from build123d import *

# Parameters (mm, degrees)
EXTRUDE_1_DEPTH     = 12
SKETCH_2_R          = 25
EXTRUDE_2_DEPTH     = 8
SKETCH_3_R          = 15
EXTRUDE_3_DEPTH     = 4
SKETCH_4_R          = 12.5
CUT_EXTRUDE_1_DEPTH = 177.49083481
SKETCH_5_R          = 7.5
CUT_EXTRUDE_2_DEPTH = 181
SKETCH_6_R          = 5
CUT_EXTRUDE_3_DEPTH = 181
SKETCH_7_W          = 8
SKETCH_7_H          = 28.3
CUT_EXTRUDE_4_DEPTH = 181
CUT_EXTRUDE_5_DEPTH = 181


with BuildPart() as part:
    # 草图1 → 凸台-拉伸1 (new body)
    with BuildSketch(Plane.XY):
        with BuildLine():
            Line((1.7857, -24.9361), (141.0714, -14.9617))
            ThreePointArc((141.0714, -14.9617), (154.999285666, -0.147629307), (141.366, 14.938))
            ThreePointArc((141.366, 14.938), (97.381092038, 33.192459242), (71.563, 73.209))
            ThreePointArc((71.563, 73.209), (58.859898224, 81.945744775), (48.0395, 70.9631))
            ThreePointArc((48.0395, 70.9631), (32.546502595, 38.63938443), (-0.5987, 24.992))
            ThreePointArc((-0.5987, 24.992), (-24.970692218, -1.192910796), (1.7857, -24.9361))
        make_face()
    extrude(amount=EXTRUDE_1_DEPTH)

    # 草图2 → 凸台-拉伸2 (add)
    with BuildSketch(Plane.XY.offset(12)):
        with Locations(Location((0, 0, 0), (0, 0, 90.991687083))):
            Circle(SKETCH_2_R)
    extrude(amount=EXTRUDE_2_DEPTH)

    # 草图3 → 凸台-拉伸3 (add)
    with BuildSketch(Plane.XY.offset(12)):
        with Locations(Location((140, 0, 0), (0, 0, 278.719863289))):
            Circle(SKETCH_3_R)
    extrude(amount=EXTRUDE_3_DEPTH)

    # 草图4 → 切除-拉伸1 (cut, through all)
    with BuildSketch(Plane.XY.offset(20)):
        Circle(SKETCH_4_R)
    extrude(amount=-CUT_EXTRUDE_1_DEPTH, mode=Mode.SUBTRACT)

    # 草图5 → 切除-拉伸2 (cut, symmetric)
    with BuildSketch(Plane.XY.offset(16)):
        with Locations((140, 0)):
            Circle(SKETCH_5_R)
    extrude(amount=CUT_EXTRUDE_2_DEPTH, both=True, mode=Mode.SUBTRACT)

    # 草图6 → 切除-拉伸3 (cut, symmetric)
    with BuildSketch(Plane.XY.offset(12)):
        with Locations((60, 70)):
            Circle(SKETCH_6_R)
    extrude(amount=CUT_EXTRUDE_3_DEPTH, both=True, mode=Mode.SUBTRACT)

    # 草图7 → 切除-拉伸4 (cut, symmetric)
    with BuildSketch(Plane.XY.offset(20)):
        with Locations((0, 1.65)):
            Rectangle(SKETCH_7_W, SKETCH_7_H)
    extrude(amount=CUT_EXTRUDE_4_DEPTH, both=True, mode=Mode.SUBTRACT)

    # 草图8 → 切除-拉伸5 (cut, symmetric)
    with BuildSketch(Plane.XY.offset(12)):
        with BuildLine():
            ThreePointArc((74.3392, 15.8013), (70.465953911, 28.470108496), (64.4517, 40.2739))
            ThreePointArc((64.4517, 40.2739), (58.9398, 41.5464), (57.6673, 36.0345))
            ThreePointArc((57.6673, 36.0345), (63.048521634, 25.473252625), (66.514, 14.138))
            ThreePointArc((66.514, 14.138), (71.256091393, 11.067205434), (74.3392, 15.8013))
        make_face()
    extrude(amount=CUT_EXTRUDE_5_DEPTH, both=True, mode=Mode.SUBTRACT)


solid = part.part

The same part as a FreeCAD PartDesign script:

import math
import FreeCAD as App
import Part
import Sketcher

V = App.Vector
Q = App.Units.Quantity


def add_polygon(sketch, points):
    """Adds a closed chain of lines whose ends are joined by coincident constraints."""
    first, n = sketch.GeometryCount, len(points)
    for a, b in zip(points, points[1:] + points[:1]):
        sketch.addGeometry(Part.LineSegment(App.Vector(*a, 0), App.Vector(*b, 0)), False)
    for i in range(n):
        sketch.addConstraint(Sketcher.Constraint("Coincident", first + i, 2, first + (i + 1) % n, 1))

doc = App.newDocument("Part")
body = doc.addObject("PartDesign::Body", "Body")

# Sketch on XY plane
sketch1 = doc.addObject("Sketcher::SketchObject", "Sketch")
body.addObject(sketch1)
sketch1.AttachmentSupport = (doc.XY_Plane, [""])
sketch1.MapMode = "FlatFace"
sketch1.addGeometry(Part.LineSegment(V(1.7857, -24.9361, 0), V(141.0714, -14.9617, 0)), False)
sketch1.addGeometry(Part.ArcOfCircle(Part.Circle(V(139.99983, 0.000159, 0), V(0, 0, 1), 15.000183), math.radians(-85.903466), math.radians(84.774439)), False)
sketch1.addGeometry(Part.ArcOfCircle(Part.Circle(V(148.649606, 94.607161, 0), V(0, 0, 1), 80.001414), math.radians(-164.486091), math.radians(-95.22364)), False)
sketch1.addGeometry(Part.ArcOfCircle(Part.Circle(V(60.000364, 70.00053, 0), V(0, 0, 1), 11.999534), math.radians(15.508592), math.radians(175.398945)), False)
sketch1.addGeometry(Part.ArcOfCircle(Part.Circle(V(-1.796832, 74.975213, 0), V(0, 0, 1), 49.997571), math.radians(-88.626843), math.radians(-4.602715)), False)
sketch1.addGeometry(Part.ArcOfCircle(Part.Circle(V(0.000402, -0.000374, 0), V(0, 0, 1), 24.999554), math.radians(91.373197), math.radians(274.09516)), False)
sketch1.addConstraint(Sketcher.Constraint("Coincident", 0, 2, 1, 1))
sketch1.addConstraint(Sketcher.Constraint("Coincident", 1, 2, 2, 2))
sketch1.addConstraint(Sketcher.Constraint("Coincident", 2, 1, 3, 1))
sketch1.addConstraint(Sketcher.Constraint("Coincident", 3, 2, 4, 2))
sketch1.addConstraint(Sketcher.Constraint("Tangent", 4, 1, 5, 1))
sketch1.addConstraint(Sketcher.Constraint("Coincident", 5, 2, 0, 1))
sketch1.addConstraint(Sketcher.Constraint("Radius", 4, Q("49.997571 mm")))
sketch1.addConstraint(Sketcher.Constraint("DistanceX", -1, 1, 1, 2, Q("141.366 mm")))
sketch1.addConstraint(Sketcher.Constraint("DistanceY", -1, 1, 1, 2, Q("14.938 mm")))
sketch1.addConstraint(Sketcher.Constraint("DistanceX", -1, 1, 2, 1, Q("71.563 mm")))
sketch1.addConstraint(Sketcher.Constraint("DistanceY", -1, 1, 2, 1, Q("73.209 mm")))
sketch1.addConstraint(Sketcher.Constraint("DistanceY", -1, 1, 4, 1, Q("24.992 mm")))
sketch1.addConstraint(Sketcher.Constraint("Radius", 1, Q("15.000183 mm")))
sketch1.addConstraint(Sketcher.Constraint("Radius", 2, Q("80.001414 mm")))
sketch1.addConstraint(Sketcher.Constraint("Radius", 3, Q("11.999534 mm")))
sketch1.addConstraint(Sketcher.Constraint("Radius", 5, Q("24.999554 mm")))
sketch1.addConstraint(Sketcher.Constraint("DistanceY", 1, 3, 2, 3, Q("94.607002 mm")))
sketch1.addConstraint(Sketcher.Constraint("DistanceX", -1, 1, 0, 2, Q("141.0714 mm")))
sketch1.addConstraint(Sketcher.Constraint("DistanceX", -1, 1, 3, 2, Q("48.0395 mm")))
sketch1.addConstraint(Sketcher.Constraint("DistanceY", -1, 1, 3, 2, Q("70.9631 mm")))
sketch1.addConstraint(Sketcher.Constraint("DistanceX", 4, 1, -1, 1, Q("0.5987 mm")))
sketch1.addConstraint(Sketcher.Constraint("DistanceX", -1, 1, 5, 2, Q("1.7857 mm")))
pad1 = doc.addObject("PartDesign::Pad", "Pad")
body.addObject(pad1)
pad1.Profile = sketch1
pad1.Length = 12

# Sketch on XY plane
sketch2 = doc.addObject("Sketcher::SketchObject", "Sketch001")
body.addObject(sketch2)
sketch2.AttachmentSupport = (doc.XY_Plane, [""])
sketch2.MapMode = "FlatFace"
sketch2.AttachmentOffset = App.Placement(V(0, 0, 12), App.Rotation())
sketch2.addGeometry(Part.Circle(V(0, 0, 0), V(0, 0, 1), 25), False)
sketch2.addConstraint(Sketcher.Constraint("Coincident", 0, 3, -1, 1))
sketch2.addConstraint(Sketcher.Constraint("Diameter", 0, Q("50 mm")))
pad2 = doc.addObject("PartDesign::Pad", "Pad001")
body.addObject(pad2)
pad2.Profile = sketch2
pad2.Length = 8

# Sketch on XY plane
sketch3 = doc.addObject("Sketcher::SketchObject", "Sketch002")
body.addObject(sketch3)
sketch3.AttachmentSupport = (doc.XY_Plane, [""])
sketch3.MapMode = "FlatFace"
sketch3.AttachmentOffset = App.Placement(V(0, 0, 12), App.Rotation())
sketch3.addGeometry(Part.Circle(V(140, 0, 0), V(0, 0, 1), 15), False)
sketch3.addConstraint(Sketcher.Constraint("PointOnObject", 0, 3, -1))
sketch3.addConstraint(Sketcher.Constraint("Diameter", 0, Q("30 mm")))
sketch3.addConstraint(Sketcher.Constraint("DistanceX", -1, 1, 0, 3, Q("140 mm")))
pad3 = doc.addObject("PartDesign::Pad", "Pad002")
body.addObject(pad3)
pad3.Profile = sketch3
pad3.Length = 4

# Sketch on XY plane
sketch4 = doc.addObject("Sketcher::SketchObject", "Sketch003")
body.addObject(sketch4)
sketch4.AttachmentSupport = (doc.XY_Plane, [""])
sketch4.MapMode = "FlatFace"
sketch4.AttachmentOffset = App.Placement(V(0, 0, 20), App.Rotation())
sketch4.addGeometry(Part.Circle(V(0, 0, 0), V(0, 0, 1), 12.5), False)
sketch4.addConstraint(Sketcher.Constraint("Coincident", 0, 3, -1, 1))
sketch4.addConstraint(Sketcher.Constraint("Diameter", 0, Q("25 mm")))
pocket1 = doc.addObject("PartDesign::Pocket", "Pocket")
body.addObject(pocket1)
pocket1.Profile = sketch4
pocket1.Type = "ThroughAll"

# Sketch on XY plane
sketch5 = doc.addObject("Sketcher::SketchObject", "Sketch004")
body.addObject(sketch5)
sketch5.AttachmentSupport = (doc.XY_Plane, [""])
sketch5.MapMode = "FlatFace"
sketch5.AttachmentOffset = App.Placement(V(0, 0, 16), App.Rotation())
sketch5.addGeometry(Part.Circle(V(140, 0, 0), V(0, 0, 1), 7.5), False)
sketch5.addConstraint(Sketcher.Constraint("PointOnObject", 0, 3, -1))
sketch5.addConstraint(Sketcher.Constraint("Diameter", 0, Q("15 mm")))
sketch5.addConstraint(Sketcher.Constraint("DistanceX", -1, 1, 0, 3, Q("140 mm")))
pocket2 = doc.addObject("PartDesign::Pocket", "Pocket001")
body.addObject(pocket2)
pocket2.Profile = sketch5
pocket2.Length = 362
pocket2.Midplane = True

# Sketch on XY plane
sketch6 = doc.addObject("Sketcher::SketchObject", "Sketch005")
body.addObject(sketch6)
sketch6.AttachmentSupport = (doc.XY_Plane, [""])
sketch6.MapMode = "FlatFace"
sketch6.AttachmentOffset = App.Placement(V(0, 0, 12), App.Rotation())
sketch6.addGeometry(Part.Circle(V(60, 70, 0), V(0, 0, 1), 5), False)
sketch6.addConstraint(Sketcher.Constraint("Diameter", 0, Q("10 mm")))
sketch6.addConstraint(Sketcher.Constraint("DistanceX", -1, 1, 0, 3, Q("60 mm")))
sketch6.addConstraint(Sketcher.Constraint("DistanceY", -1, 1, 0, 3, Q("70 mm")))
pocket3 = doc.addObject("PartDesign::Pocket", "Pocket002")
body.addObject(pocket3)
pocket3.Profile = sketch6
pocket3.Length = 362
pocket3.Midplane = True

# Sketch on XY plane
sketch7 = doc.addObject("Sketcher::SketchObject", "Sketch006")
body.addObject(sketch7)
sketch7.AttachmentSupport = (doc.XY_Plane, [""])
sketch7.MapMode = "FlatFace"
sketch7.AttachmentOffset = App.Placement(V(0, 0, 20), App.Rotation())
add_polygon(sketch7, [(-4, 15.8), (-4, -12.5), (4, -12.5), (4, 15.8)])  # lines 0-3
sketch7.addConstraint(Sketcher.Constraint("Vertical", 0))
sketch7.addConstraint(Sketcher.Constraint("Horizontal", 1))
sketch7.addConstraint(Sketcher.Constraint("Vertical", 2))
sketch7.addConstraint(Sketcher.Constraint("Horizontal", 3))
sketch7.addConstraint(Sketcher.Constraint("DistanceX", 1, 1, 1, 2, Q("8 mm")))
sketch7.addConstraint(Sketcher.Constraint("DistanceY", 0, 2, 0, 1, Q("28.3 mm")))
sketch7.addConstraint(Sketcher.Constraint("DistanceX", 0, 2, -1, 1, Q("4 mm")))
sketch7.addConstraint(Sketcher.Constraint("DistanceY", 0, 2, -1, 1, Q("12.5 mm")))
pocket4 = doc.addObject("PartDesign::Pocket", "Pocket003")
body.addObject(pocket4)
pocket4.Profile = sketch7
pocket4.Length = 362
pocket4.Midplane = True

# Sketch on XY plane
sketch8 = doc.addObject("Sketcher::SketchObject", "Sketch007")
body.addObject(sketch8)
sketch8.AttachmentSupport = (doc.XY_Plane, [""])
sketch8.MapMode = "FlatFace"
sketch8.AttachmentOffset = App.Placement(V(0, 0, 12), App.Rotation())
sketch8.addGeometry(Part.ArcOfCircle(Part.Circle(V(-0.002269, -0.000694, 0), V(0, 0, 1), 76.002349), math.radians(12.000167), math.radians(31.999542)), False)
sketch8.addGeometry(Part.ArcOfCircle(Part.Circle(V(61.0595, 38.1542, 0), V(0, 0, 1), 4.000019), math.radians(32.000221), math.radians(212.000221)), False)
sketch8.addGeometry(Part.ArcOfCircle(Part.Circle(V(0.00161, 0.00082, 0), V(0, 0, 1), 67.998219), math.radians(11.999616), math.radians(32.000112)), False)
sketch8.addGeometry(Part.ArcOfCircle(Part.Circle(V(70.424439, 14.979819, 0), V(0, 0, 1), 4.000024), math.radians(-167.851075), math.radians(11.851108)), False)
sketch8.addConstraint(Sketcher.Constraint("Coincident", 0, 2, 1, 1))
sketch8.addConstraint(Sketcher.Constraint("Tangent", 1, 2, 2, 2))
sketch8.addConstraint(Sketcher.Constraint("Coincident", 2, 1, 3, 1))
sketch8.addConstraint(Sketcher.Constraint("Coincident", 3, 2, 0, 1))
sketch8.addConstraint(Sketcher.Constraint("Radius", 0, Q("76.002349 mm")))
sketch8.addConstraint(Sketcher.Constraint("Radius", 1, Q("4.000019 mm")))
sketch8.addConstraint(Sketcher.Constraint("Radius", 2, Q("67.998219 mm")))
sketch8.addConstraint(Sketcher.Constraint("DistanceX", -1, 1, 2, 1, Q("66.514 mm")))
sketch8.addConstraint(Sketcher.Constraint("DistanceY", -1, 1, 2, 1, Q("14.138 mm")))
sketch8.addConstraint(Sketcher.Constraint("Radius", 3, Q("4.000024 mm")))
sketch8.addConstraint(Sketcher.Constraint("DistanceY", 2, 3, 3, 3, Q("14.978998 mm")))
sketch8.addConstraint(Sketcher.Constraint("DistanceX", -1, 1, 1, 3, Q("61.0595 mm")))
sketch8.addConstraint(Sketcher.Constraint("DistanceY", -1, 1, 1, 3, Q("38.1542 mm")))
sketch8.addConstraint(Sketcher.Constraint("DistanceX", -1, 1, 0, 2, Q("64.4517 mm")))
sketch8.addConstraint(Sketcher.Constraint("DistanceX", -1, 1, 3, 2, Q("74.3392 mm")))
pocket5 = doc.addObject("PartDesign::Pocket", "Pocket004")
body.addObject(pocket5)
pocket5.Profile = sketch8
pocket5.Length = 362
pocket5.Midplane = True

doc.recompute()
